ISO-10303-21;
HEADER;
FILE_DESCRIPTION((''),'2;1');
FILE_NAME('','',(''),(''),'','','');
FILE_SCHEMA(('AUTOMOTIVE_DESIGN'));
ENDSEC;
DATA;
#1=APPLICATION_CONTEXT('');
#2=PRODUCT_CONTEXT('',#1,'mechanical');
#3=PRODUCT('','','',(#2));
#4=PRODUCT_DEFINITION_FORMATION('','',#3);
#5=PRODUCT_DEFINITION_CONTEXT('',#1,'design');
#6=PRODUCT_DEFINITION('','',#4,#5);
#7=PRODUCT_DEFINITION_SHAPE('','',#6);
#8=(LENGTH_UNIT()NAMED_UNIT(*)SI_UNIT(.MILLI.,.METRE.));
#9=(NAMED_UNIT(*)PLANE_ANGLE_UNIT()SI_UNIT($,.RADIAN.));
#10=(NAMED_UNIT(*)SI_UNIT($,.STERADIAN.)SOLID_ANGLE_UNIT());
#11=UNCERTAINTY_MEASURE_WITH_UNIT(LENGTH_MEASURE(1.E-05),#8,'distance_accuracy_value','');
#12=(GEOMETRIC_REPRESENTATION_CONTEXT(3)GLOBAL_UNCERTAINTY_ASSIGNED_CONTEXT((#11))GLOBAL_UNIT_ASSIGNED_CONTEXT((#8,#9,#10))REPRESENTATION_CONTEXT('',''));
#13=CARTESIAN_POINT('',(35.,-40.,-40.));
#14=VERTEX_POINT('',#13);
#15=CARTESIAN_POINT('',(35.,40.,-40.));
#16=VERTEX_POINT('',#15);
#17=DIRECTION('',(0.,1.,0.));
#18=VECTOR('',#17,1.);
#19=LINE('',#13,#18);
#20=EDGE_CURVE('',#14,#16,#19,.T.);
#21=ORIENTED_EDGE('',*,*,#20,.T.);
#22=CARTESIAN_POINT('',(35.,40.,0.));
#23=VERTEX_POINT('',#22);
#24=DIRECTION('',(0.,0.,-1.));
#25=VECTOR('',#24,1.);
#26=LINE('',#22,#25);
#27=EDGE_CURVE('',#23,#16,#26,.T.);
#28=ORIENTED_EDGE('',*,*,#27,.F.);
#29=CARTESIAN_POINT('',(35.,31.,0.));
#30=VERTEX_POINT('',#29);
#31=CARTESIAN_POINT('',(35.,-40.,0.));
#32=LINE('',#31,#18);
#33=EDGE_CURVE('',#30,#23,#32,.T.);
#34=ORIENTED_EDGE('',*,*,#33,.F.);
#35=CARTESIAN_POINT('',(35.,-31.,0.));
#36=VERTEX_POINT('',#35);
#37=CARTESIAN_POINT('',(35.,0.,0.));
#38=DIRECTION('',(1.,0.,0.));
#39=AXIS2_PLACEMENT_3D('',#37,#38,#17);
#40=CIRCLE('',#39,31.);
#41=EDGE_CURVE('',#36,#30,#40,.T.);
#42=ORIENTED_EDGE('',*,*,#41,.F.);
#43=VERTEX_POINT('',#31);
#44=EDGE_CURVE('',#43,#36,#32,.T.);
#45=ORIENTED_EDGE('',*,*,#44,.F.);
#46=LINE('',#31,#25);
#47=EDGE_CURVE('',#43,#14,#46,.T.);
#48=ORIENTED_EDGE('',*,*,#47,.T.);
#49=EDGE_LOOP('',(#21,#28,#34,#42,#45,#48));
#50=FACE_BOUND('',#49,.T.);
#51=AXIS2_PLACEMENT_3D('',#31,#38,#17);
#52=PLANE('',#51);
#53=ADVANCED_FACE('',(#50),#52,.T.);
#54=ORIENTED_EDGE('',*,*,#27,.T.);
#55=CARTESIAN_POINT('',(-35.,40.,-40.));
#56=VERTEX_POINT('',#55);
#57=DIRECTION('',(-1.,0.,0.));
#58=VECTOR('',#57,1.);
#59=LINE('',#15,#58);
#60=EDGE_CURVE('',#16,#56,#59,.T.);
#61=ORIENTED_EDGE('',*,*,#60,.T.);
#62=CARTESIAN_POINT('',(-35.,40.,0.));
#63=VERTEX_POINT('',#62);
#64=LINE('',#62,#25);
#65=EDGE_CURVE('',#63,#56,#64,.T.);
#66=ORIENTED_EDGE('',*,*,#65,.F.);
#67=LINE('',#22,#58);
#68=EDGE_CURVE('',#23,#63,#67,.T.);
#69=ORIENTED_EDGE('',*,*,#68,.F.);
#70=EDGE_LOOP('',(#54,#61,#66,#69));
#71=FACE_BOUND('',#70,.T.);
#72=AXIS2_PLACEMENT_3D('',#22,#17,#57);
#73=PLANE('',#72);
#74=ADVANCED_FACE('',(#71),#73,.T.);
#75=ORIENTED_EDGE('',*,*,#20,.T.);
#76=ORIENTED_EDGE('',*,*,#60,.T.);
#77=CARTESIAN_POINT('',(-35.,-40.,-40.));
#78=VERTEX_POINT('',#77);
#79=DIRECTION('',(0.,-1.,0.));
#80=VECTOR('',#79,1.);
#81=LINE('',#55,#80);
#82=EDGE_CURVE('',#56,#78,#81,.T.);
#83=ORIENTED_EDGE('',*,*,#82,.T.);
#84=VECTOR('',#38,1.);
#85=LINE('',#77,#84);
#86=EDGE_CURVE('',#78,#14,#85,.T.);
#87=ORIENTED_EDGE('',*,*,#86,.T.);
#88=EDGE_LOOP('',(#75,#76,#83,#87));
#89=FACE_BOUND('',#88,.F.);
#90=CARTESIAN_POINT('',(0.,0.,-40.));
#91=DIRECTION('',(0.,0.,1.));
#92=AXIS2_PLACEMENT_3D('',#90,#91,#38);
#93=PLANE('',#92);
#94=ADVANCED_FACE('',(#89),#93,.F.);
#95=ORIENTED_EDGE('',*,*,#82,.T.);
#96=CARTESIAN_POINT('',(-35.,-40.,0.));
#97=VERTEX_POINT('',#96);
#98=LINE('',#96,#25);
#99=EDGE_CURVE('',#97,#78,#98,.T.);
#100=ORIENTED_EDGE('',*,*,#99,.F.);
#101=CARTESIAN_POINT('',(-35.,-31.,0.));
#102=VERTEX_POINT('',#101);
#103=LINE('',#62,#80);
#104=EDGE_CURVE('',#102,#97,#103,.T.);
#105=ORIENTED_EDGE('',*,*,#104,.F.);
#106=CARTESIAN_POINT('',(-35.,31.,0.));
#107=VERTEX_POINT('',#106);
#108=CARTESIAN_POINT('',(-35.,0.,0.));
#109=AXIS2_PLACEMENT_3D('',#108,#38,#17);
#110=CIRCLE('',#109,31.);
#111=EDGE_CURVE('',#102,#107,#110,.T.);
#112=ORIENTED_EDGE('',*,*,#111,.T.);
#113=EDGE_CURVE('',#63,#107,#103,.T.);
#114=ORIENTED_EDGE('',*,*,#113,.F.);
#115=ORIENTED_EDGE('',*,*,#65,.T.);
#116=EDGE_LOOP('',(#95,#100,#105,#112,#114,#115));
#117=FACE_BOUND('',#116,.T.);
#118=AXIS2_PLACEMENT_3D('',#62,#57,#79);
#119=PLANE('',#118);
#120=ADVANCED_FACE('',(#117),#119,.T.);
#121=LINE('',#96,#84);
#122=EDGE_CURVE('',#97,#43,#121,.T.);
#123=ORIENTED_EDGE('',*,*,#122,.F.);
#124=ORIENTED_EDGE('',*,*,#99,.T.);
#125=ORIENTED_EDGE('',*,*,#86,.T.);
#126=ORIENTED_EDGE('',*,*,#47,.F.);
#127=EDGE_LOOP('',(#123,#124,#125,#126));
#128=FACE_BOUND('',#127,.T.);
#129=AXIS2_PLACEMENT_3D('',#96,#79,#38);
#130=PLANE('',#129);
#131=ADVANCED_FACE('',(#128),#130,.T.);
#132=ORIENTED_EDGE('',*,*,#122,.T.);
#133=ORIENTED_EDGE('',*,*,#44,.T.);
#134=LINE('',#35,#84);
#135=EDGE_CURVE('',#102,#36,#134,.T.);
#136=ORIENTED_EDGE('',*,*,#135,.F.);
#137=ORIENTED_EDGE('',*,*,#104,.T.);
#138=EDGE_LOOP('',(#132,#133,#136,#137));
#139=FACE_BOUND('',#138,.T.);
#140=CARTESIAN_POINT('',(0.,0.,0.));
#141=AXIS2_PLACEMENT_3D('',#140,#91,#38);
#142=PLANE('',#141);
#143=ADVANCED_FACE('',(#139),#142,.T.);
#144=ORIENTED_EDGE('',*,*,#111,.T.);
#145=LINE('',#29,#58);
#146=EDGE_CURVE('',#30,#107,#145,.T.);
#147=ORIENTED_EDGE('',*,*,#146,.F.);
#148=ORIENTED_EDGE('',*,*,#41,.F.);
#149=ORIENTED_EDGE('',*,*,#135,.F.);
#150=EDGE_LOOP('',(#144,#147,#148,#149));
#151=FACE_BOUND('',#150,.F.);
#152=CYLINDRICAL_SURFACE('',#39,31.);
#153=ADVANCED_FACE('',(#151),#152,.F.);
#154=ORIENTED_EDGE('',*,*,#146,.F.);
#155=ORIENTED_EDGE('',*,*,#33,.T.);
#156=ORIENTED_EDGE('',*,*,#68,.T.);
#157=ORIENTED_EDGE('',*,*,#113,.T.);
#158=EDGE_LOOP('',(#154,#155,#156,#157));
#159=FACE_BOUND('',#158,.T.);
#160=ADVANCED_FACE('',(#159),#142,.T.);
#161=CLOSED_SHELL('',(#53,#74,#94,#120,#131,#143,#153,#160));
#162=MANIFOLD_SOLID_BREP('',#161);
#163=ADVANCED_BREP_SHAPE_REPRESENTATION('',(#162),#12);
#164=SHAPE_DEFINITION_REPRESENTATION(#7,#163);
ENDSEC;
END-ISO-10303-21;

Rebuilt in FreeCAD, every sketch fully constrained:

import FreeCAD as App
import Part
import Sketcher

V = App.Vector


def add_polygon(sketch, points):
    """Adds a closed chain of lines whose ends are joined by coincident constraints."""
    first, n = sketch.GeometryCount, len(points)
    for a, b in zip(points, points[1:] + points[:1]):
        sketch.addGeometry(Part.LineSegment(App.Vector(*a, 0), App.Vector(*b, 0)), False)
    for i in range(n):
        sketch.addConstraint(Sketcher.Constraint("Coincident", first + i, 2, first + (i + 1) % n, 1))

doc = App.newDocument("Part")
params = doc.addObject("Spreadsheet::Sheet", "Params")
for row, (alias, value) in enumerate([
    ("sketch1_width", "70 mm"),
    ("sketch1_height", "80 mm"),
    ("pad1_length", "40 mm"),
    ("sketch2_diameter", "62 mm"),
    ("pocket1_length", "70 mm"),
], start=1):
    params.set(f"A{row}", alias)
    params.set(f"B{row}", "=" + value)
    params.setAlias(f"B{row}", alias)

body = doc.addObject("PartDesign::Body", "Body")

# Sketch on XY plane
sketch1 = body.newObject("Sketcher::SketchObject", "Sketch")
sketch1.AttachmentSupport = (doc.getObject("XY_Plane"), [""])
sketch1.MapMode = "FlatFace"
add_polygon(sketch1, [(-35, 40), (-35, -40), (35, -40), (35, 40)])  # lines 0-3
sketch1.addConstraint([
    Sketcher.Constraint("Vertical", 0),
    Sketcher.Constraint("Horizontal", 1),
    Sketcher.Constraint("Vertical", 2),
    Sketcher.Constraint("Horizontal", 3),
    Sketcher.Constraint("Symmetric", 0, 2, 2, 2, -1, 1),
    Sketcher.Constraint("DistanceX", 1, 1, 1, 2, 70.0),
    Sketcher.Constraint("DistanceY", 0, 2, 0, 1, 80.0),
])
sketch1.setExpression("Constraints[9]", "Params.sketch1_width")
sketch1.setExpression("Constraints[10]", "Params.sketch1_height")
pad1 = body.newObject("PartDesign::Pad", "Pad")
pad1.Profile = sketch1
pad1.setExpression("Length", "Params.pad1_length")
pad1.Reversed = True

# Sketch on YZ plane
sketch2 = body.newObject("Sketcher::SketchObject", "Sketch001")
sketch2.AttachmentSupport = (doc.getObject("YZ_Plane"), [""])
sketch2.MapMode = "FlatFace"
sketch2.AttachmentOffset = App.Placement(V(0, 0, 35), App.Rotation())
sketch2.addGeometry(Part.Circle(V(0, 0, 0), V(0, 0, 1), 31), False)
sketch2.addConstraint([
    Sketcher.Constraint("Coincident", 0, 3, -1, 1),
    Sketcher.Constraint("Diameter", 0, 62.0),
])
sketch2.setExpression("Constraints[1]", "Params.sketch2_diameter")
pocket1 = body.newObject("PartDesign::Pocket", "Pocket")
pocket1.Profile = sketch2
pocket1.setExpression("Length", "Params.pocket1_length")

doc.recompute()
